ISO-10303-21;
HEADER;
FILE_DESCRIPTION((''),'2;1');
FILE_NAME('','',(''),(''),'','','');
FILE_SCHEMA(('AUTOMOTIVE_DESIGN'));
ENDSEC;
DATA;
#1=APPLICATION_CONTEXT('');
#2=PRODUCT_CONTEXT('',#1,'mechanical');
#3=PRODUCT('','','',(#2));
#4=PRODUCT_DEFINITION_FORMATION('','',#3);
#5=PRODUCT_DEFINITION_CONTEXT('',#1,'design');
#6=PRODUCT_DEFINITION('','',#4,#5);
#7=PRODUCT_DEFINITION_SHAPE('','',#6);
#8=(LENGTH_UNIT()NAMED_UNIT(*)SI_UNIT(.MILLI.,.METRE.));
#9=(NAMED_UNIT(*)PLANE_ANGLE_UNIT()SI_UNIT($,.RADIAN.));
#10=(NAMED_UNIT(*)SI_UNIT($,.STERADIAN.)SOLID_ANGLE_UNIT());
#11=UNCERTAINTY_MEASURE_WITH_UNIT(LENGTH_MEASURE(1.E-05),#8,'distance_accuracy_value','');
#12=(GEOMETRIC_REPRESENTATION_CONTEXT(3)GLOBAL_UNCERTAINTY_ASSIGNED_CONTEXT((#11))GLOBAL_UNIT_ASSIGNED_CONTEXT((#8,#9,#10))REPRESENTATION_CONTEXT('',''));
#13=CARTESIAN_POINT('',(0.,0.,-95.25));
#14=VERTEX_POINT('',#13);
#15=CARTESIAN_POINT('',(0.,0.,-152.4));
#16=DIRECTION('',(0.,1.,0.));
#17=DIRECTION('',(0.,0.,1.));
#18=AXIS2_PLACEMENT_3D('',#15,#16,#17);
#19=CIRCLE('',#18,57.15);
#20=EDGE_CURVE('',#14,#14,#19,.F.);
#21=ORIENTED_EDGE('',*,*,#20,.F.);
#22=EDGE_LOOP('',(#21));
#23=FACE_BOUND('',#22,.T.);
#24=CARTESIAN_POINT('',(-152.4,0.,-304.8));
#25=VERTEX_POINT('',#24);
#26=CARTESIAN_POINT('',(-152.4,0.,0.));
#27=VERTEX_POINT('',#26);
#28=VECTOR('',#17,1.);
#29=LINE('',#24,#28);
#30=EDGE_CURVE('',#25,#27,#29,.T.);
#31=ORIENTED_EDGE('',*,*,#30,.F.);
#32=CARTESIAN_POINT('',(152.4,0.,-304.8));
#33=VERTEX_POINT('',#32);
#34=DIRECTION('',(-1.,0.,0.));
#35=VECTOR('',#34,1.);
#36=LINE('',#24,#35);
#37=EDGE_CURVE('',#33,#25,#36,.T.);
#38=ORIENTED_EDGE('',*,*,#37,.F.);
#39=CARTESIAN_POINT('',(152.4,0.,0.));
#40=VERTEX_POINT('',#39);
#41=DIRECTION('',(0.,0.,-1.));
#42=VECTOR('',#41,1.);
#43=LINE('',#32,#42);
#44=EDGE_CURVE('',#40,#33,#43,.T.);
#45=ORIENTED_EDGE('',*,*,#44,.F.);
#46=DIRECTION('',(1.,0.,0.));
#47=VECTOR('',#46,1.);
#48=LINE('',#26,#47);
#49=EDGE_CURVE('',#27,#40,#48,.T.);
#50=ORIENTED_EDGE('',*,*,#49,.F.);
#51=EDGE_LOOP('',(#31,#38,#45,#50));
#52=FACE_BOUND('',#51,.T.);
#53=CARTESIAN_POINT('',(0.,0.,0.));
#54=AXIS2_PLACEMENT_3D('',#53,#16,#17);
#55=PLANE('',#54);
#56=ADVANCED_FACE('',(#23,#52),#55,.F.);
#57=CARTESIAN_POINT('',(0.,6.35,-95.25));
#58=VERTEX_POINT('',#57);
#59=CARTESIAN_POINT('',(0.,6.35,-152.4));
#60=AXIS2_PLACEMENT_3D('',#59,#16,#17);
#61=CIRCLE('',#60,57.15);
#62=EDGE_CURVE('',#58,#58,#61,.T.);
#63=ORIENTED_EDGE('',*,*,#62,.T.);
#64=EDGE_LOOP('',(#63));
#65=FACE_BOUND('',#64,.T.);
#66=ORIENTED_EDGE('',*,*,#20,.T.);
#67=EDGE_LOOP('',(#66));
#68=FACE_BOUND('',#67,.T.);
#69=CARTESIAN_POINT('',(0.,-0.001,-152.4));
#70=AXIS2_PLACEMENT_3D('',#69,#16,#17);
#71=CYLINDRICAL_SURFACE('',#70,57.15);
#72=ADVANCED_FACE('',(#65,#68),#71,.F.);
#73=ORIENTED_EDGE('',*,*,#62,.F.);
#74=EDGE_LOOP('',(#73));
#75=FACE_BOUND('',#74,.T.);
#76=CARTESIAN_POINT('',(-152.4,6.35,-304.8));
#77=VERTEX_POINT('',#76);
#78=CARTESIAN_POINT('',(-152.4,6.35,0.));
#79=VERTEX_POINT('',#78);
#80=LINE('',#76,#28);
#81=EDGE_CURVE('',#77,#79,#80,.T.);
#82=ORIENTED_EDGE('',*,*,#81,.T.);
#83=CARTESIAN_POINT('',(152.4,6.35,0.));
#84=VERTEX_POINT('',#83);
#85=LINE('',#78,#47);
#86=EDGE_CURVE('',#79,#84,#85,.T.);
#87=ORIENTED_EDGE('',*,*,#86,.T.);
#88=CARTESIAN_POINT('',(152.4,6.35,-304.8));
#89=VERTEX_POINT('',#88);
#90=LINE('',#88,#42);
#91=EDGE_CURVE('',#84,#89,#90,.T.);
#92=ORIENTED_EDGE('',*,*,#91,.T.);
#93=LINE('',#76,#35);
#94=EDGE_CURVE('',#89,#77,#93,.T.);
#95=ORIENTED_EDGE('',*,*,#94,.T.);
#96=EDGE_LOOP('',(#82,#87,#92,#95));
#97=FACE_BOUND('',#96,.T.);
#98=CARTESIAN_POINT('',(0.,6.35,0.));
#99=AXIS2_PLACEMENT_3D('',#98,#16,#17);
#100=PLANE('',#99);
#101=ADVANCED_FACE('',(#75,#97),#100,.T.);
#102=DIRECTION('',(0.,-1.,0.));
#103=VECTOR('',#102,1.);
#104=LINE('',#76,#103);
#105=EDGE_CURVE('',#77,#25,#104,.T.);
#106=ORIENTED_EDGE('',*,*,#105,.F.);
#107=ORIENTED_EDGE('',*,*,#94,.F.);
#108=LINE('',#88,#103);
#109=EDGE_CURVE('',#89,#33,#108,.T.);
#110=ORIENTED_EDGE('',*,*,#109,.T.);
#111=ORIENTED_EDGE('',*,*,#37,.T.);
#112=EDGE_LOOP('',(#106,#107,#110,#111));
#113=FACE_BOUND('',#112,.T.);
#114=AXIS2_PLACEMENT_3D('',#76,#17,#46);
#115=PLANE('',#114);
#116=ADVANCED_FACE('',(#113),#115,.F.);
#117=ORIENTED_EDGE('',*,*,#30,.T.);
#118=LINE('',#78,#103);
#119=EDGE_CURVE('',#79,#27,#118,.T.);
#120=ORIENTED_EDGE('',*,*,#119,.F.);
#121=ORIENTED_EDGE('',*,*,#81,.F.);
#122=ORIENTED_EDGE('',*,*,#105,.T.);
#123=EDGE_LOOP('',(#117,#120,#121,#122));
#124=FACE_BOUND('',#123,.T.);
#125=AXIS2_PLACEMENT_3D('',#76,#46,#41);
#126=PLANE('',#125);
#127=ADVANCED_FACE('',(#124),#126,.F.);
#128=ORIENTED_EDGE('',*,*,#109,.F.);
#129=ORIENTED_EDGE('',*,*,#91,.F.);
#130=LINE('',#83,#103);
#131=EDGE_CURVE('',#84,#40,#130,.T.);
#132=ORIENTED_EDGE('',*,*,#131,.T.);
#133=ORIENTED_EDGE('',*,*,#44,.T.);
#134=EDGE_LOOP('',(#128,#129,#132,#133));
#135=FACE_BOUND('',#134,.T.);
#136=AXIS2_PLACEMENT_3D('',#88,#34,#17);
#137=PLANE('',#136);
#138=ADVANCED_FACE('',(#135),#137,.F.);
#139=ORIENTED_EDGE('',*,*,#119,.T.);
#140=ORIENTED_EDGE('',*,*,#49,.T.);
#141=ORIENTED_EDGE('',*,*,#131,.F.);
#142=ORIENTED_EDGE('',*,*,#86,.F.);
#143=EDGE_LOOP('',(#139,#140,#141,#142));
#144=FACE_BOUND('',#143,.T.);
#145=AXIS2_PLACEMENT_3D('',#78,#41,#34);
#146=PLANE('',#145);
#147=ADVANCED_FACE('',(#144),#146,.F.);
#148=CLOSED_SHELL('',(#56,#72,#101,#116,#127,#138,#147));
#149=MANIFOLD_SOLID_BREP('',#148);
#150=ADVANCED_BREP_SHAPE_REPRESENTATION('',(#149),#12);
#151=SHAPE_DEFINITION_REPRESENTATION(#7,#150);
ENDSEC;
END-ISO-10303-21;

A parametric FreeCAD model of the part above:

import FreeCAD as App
import Part
import Sketcher
from FreeCAD import Vector
Q = App.Units.Quantity

doc = App.newDocument("Part")
body = doc.addObject("PartDesign::Body", "Body")

# Sketch on XZ plane
sketch1 = body.newObject("Sketcher::SketchObject", "Sketch")
sketch1.AttachmentSupport = (doc.getObject("XZ_Plane"), [""])
sketch1.MapMode = "FlatFace"
sketch1.addGeometry(Part.LineSegment(Vector(-152, -305, 0), Vector(-152, 0, 0)), False)
sketch1.addGeometry(Part.LineSegment(Vector(-152, 0, 0), Vector(152, 0, 0)), False)
sketch1.addGeometry(Part.LineSegment(Vector(152, 0, 0), Vector(152, -305, 0)), False)
sketch1.addGeometry(Part.LineSegment(Vector(152, -305, 0), Vector(-152, -305, 0)), False)
sketch1.addConstraint(Sketcher.Constraint("Coincident", 0, 2, 1, 1))
sketch1.addConstraint(Sketcher.Constraint("Coincident", 1, 2, 2, 1))
sketch1.addConstraint(Sketcher.Constraint("Coincident", 2, 2, 3, 1))
sketch1.addConstraint(Sketcher.Constraint("Coincident", 3, 2, 0, 1))
sketch1.addConstraint(Sketcher.Constraint("Vertical", 0))
sketch1.addConstraint(Sketcher.Constraint("Horizontal", 1))
sketch1.addConstraint(Sketcher.Constraint("Vertical", 2))
sketch1.addConstraint(Sketcher.Constraint("Horizontal", 3))
sketch1.addConstraint(Sketcher.Constraint("Symmetric", 0, 2, 1, 2, -1, 1))
sketch1.addConstraint(Sketcher.Constraint("Equal", 3, 0))
sketch1.addConstraint(Sketcher.Constraint("DistanceX", 1, 1, 1, 2, Q("12 in")))
pad1 = body.newObject("PartDesign::Pad", "Pad")
pad1.Profile = sketch1
pad1.Length = Q("0.25 in")
pad1.Reversed = True

# Sketch on XZ plane
sketch2 = body.newObject("Sketcher::SketchObject", "Sketch001")
sketch2.AttachmentSupport = (doc.getObject("XZ_Plane"), [""])
sketch2.MapMode = "FlatFace"
sketch2.AttachmentOffset = App.Placement(Vector(0, 0, -0.25 * 25.4), App.Rotation())
sketch2.addGeometry(Part.Circle(Vector(0, -152, 0), Vector(0, 0, 1), 57), False)
sketch2.addConstraint(Sketcher.Constraint("PointOnObject", 0, 3, -2))
sketch2.addConstraint(Sketcher.Constraint("Diameter", 0, Q("4.5 in")))
sketch2.addConstraint(Sketcher.Constraint("DistanceY", 0, 3, -1, 1, Q("6 in")))
pocket1 = body.newObject("PartDesign::Pocket", "Pocket")
pocket1.Profile = sketch2
pocket1.Type = "UpToFirst"
pocket1.Reversed = True

doc.recompute()
